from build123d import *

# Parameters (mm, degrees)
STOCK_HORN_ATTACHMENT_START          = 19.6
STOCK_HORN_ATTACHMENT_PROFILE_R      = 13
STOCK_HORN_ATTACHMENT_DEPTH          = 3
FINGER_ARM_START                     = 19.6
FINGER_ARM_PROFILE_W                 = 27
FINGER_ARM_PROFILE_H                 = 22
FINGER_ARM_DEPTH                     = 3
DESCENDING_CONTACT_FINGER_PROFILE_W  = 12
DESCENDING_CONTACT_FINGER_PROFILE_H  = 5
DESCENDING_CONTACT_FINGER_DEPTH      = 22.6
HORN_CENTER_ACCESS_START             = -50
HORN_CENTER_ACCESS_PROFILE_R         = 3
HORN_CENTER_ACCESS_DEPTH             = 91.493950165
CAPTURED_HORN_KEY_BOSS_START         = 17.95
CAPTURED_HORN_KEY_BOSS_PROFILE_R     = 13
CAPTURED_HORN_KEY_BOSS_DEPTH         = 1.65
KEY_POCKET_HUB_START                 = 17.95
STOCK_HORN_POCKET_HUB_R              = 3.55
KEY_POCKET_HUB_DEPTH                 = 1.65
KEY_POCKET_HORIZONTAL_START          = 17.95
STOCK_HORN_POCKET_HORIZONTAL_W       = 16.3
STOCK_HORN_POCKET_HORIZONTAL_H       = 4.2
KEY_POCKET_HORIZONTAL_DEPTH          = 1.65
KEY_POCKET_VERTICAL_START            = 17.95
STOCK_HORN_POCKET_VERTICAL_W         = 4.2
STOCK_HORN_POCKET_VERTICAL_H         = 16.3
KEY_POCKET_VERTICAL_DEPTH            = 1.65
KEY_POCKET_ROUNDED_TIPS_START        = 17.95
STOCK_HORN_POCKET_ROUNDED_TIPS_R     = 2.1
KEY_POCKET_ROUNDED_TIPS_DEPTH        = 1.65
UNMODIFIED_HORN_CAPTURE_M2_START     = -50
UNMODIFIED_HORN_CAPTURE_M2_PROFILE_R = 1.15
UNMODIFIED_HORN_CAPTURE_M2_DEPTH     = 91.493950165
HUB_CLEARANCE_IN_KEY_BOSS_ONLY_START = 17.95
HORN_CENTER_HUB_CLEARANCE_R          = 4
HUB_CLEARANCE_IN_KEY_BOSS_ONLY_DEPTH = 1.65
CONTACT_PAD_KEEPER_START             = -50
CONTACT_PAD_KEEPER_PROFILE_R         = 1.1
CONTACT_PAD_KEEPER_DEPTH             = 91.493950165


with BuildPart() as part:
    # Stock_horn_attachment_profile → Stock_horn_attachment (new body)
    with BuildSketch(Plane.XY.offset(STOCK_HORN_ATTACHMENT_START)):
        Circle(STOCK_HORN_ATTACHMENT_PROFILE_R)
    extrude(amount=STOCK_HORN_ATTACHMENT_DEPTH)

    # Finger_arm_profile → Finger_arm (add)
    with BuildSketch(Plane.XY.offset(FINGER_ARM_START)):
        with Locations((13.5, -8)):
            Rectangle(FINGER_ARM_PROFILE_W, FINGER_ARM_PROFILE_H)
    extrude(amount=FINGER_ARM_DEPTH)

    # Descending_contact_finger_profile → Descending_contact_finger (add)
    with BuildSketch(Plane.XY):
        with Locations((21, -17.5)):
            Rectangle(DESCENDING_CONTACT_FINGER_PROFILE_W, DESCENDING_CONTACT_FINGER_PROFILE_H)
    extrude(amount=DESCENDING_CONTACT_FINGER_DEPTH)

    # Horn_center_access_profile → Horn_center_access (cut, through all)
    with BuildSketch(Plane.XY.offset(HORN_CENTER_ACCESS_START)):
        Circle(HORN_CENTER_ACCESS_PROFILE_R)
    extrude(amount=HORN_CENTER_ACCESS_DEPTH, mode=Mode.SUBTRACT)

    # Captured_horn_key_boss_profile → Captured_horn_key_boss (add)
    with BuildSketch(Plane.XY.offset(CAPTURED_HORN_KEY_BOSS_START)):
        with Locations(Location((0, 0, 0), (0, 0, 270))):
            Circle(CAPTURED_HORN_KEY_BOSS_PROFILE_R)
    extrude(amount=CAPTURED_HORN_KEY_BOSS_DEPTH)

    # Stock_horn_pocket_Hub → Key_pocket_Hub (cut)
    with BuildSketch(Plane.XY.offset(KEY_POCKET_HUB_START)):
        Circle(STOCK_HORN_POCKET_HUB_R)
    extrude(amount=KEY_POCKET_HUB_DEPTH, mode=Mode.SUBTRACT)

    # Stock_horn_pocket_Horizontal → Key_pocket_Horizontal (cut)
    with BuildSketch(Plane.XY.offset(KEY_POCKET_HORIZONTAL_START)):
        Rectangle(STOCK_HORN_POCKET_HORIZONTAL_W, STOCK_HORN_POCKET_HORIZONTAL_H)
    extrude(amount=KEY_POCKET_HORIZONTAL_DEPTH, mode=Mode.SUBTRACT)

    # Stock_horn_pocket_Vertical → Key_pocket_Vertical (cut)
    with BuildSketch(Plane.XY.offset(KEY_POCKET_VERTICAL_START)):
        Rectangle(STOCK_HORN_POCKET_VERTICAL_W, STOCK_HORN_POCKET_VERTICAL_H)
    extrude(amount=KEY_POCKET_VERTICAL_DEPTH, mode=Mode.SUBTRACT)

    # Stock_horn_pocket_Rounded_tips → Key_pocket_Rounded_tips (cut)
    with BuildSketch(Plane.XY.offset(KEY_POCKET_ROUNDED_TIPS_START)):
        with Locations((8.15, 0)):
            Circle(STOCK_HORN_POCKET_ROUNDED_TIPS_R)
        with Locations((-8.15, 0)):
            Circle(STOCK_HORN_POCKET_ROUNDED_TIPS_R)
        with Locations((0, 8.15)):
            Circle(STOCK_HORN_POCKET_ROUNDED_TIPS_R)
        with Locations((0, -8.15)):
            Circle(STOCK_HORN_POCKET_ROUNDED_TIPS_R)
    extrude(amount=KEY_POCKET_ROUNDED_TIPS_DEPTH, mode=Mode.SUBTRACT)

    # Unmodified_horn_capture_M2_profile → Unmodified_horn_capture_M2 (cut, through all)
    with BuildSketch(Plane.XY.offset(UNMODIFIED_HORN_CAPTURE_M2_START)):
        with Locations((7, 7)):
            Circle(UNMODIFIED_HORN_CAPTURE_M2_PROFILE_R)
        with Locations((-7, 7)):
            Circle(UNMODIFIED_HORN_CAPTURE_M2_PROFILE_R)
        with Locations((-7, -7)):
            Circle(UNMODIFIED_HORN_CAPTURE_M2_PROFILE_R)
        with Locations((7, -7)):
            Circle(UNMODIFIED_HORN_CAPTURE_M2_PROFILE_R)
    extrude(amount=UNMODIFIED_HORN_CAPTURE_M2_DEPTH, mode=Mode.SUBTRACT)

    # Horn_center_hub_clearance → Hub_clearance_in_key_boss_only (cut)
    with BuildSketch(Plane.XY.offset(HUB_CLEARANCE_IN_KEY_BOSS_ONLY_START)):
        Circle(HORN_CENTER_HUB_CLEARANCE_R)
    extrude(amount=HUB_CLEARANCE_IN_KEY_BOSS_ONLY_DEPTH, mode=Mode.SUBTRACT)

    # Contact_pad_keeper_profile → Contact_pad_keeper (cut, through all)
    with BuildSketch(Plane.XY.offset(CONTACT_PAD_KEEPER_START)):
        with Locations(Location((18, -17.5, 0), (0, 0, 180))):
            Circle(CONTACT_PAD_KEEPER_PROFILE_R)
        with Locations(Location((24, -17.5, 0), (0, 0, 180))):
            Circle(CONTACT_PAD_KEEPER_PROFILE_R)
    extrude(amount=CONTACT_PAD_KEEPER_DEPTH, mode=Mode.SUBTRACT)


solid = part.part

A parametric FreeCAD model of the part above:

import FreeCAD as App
import Part
import Sketcher

V = App.Vector
Q = App.Units.Quantity

doc = App.newDocument("Part")
body = doc.addObject("PartDesign::Body", "Body")

sketch1 = doc.addObject("Sketcher::SketchObject", "Sketch")
body.addObject(sketch1)
sketch1.AttachmentSupport = (doc.XY_Plane, [""])
sketch1.MapMode = "FlatFace"
sketch1.AttachmentOffset = App.Placement(V(0, 0, 19.6), App.Rotation())
sketch1.addGeometry(Part.Circle(V(0, 0, 0), V(0, 0, 1), 13), False)
sketch1.addConstraint(Sketcher.Constraint("Coincident", 0, 3, -1, 1))
sketch1.addConstraint(Sketcher.Constraint("Diameter", 0, Q("26 mm")))
pad1 = doc.addObject("PartDesign::Pad", "Pad")
body.addObject(pad1)
pad1.Profile = sketch1
pad1.Length = 3

sketch2 = doc.addObject("Sketcher::SketchObject", "Sketch001")
body.addObject(sketch2)
sketch2.AttachmentSupport = (doc.XY_Plane, [""])
sketch2.MapMode = "FlatFace"
sketch2.AttachmentOffset = App.Placement(V(0, 0, 19.6), App.Rotation())
sketch2.addGeometry(Part.LineSegment(V(0, 3, 0), V(0, -19, 0)), False)
sketch2.addGeometry(Part.LineSegment(V(0, -19, 0), V(27, -19, 0)), False)
sketch2.addGeometry(Part.LineSegment(V(27, -19, 0), V(27, 3, 0)), False)
sketch2.addGeometry(Part.LineSegment(V(27, 3, 0), V(0, 3, 0)), False)
sketch2.addConstraint(Sketcher.Constraint("Coincident", 0, 2, 1, 1))
sketch2.addConstraint(Sketcher.Constraint("Coincident", 1, 2, 2, 1))
sketch2.addConstraint(Sketcher.Constraint("Coincident", 2, 2, 3, 1))
sketch2.addConstraint(Sketcher.Constraint("Coincident", 3, 2, 0, 1))
sketch2.addConstraint(Sketcher.Constraint("Vertical", 0))
sketch2.addConstraint(Sketcher.Constraint("Horizontal", 1))
sketch2.addConstraint(Sketcher.Constraint("Vertical", 2))
sketch2.addConstraint(Sketcher.Constraint("Horizontal", 3))
sketch2.addConstraint(Sketcher.Constraint("PointOnObject", 0, 2, -2))
sketch2.addConstraint(Sketcher.Constraint("DistanceX", 1, 1, 1, 2, Q("27 mm")))
sketch2.addConstraint(Sketcher.Constraint("DistanceY", 0, 2, 0, 1, Q("22 mm")))
sketch2.addConstraint(Sketcher.Constraint("DistanceY", 0, 2, -1, 1, Q("19 mm")))
pad2 = doc.addObject("PartDesign::Pad", "Pad001")
body.addObject(pad2)
pad2.Profile = sketch2
pad2.Length = 3

sketch3 = doc.addObject("Sketcher::SketchObject", "Sketch002")
body.addObject(sketch3)
sketch3.AttachmentSupport = (doc.XY_Plane, [""])
sketch3.MapMode = "FlatFace"
sketch3.addGeometry(Part.LineSegment(V(15, -15, 0), V(15, -20, 0)), False)
sketch3.addGeometry(Part.LineSegment(V(15, -20, 0), V(27, -20, 0)), False)
sketch3.addGeometry(Part.LineSegment(V(27, -20, 0), V(27, -15, 0)), False)
sketch3.addGeometry(Part.LineSegment(V(27, -15, 0), V(15, -15, 0)), False)
sketch3.addConstraint(Sketcher.Constraint("Coincident", 0, 2, 1, 1))
sketch3.addConstraint(Sketcher.Constraint("Coincident", 1, 2, 2, 1))
sketch3.addConstraint(Sketcher.Constraint("Coincident", 2, 2, 3, 1))
sketch3.addConstraint(Sketcher.Constraint("Coincident", 3, 2, 0, 1))
sketch3.addConstraint(Sketcher.Constraint("Vertical", 0))
sketch3.addConstraint(Sketcher.Constraint("Horizontal", 1))
sketch3.addConstraint(Sketcher.Constraint("Vertical", 2))
sketch3.addConstraint(Sketcher.Constraint("Horizontal", 3))
sketch3.addConstraint(Sketcher.Constraint("DistanceX", 1, 1, 1, 2, Q("12 mm")))
sketch3.addConstraint(Sketcher.Constraint("DistanceY", 0, 2, 0, 1, Q("5 mm")))
sketch3.addConstraint(Sketcher.Constraint("DistanceX", -1, 1, 0, 2, Q("15 mm")))
sketch3.addConstraint(Sketcher.Constraint("DistanceY", 0, 2, -1, 1, Q("20 mm")))
pad3 = doc.addObject("PartDesign::Pad", "Pad002")
body.addObject(pad3)
pad3.Profile = sketch3
pad3.Length = 22.6

sketch4 = doc.addObject("Sketcher::SketchObject", "Sketch003")
body.addObject(sketch4)
sketch4.AttachmentSupport = (doc.XY_Plane, [""])
sketch4.MapMode = "FlatFace"
sketch4.AttachmentOffset = App.Placement(V(0, 0, -50), App.Rotation())
sketch4.addGeometry(Part.Circle(V(0, 0, 0), V(0, 0, 1), 3), False)
sketch4.addConstraint(Sketcher.Constraint("Coincident", 0, 3, -1, 1))
sketch4.addConstraint(Sketcher.Constraint("Diameter", 0, Q("6 mm")))
pocket1 = doc.addObject("PartDesign::Pocket", "Pocket")
body.addObject(pocket1)
pocket1.Profile = sketch4
pocket1.Type = "ThroughAll"
pocket1.Reversed = True

sketch5 = doc.addObject("Sketcher::SketchObject", "Sketch004")
body.addObject(sketch5)
sketch5.AttachmentSupport = (doc.XY_Plane, [""])
sketch5.MapMode = "FlatFace"
sketch5.AttachmentOffset = App.Placement(V(0, 0, 17.95), App.Rotation())
sketch5.addGeometry(Part.Circle(V(0, 0, 0), V(0, 0, 1), 13), False)
sketch5.addConstraint(Sketcher.Constraint("Coincident", 0, 3, -1, 1))
sketch5.addConstraint(Sketcher.Constraint("Diameter", 0, Q("26 mm")))
pad4 = doc.addObject("PartDesign::Pad", "Pad003")
body.addObject(pad4)
pad4.Profile = sketch5
pad4.Length = 1.65

sketch6 = doc.addObject("Sketcher::SketchObject", "Sketch005")
body.addObject(sketch6)
sketch6.AttachmentSupport = (doc.XY_Plane, [""])
sketch6.MapMode = "FlatFace"
sketch6.AttachmentOffset = App.Placement(V(0, 0, 17.95), App.Rotation())
sketch6.addGeometry(Part.Circle(V(0, 0, 0), V(0, 0, 1), 3.5), False)
sketch6.addConstraint(Sketcher.Constraint("Coincident", 0, 3, -1, 1))
sketch6.addConstraint(Sketcher.Constraint("Diameter", 0, Q("7.1 mm")))
pocket2 = doc.addObject("PartDesign::Pocket", "Pocket001")
body.addObject(pocket2)
pocket2.Profile = sketch6
pocket2.Length = 1.65
pocket2.Reversed = True

sketch7 = doc.addObject("Sketcher::SketchObject", "Sketch006")
body.addObject(sketch7)
sketch7.AttachmentSupport = (doc.XY_Plane, [""])
sketch7.MapMode = "FlatFace"
sketch7.AttachmentOffset = App.Placement(V(0, 0, 17.95), App.Rotation())
sketch7.addGeometry(Part.LineSegment(V(-8.2, 2.1, 0), V(-8.2, -2.1, 0)), False)
sketch7.addGeometry(Part.LineSegment(V(-8.2, -2.1, 0), V(8.2, -2.1, 0)), False)
sketch7.addGeometry(Part.LineSegment(V(8.2, -2.1, 0), V(8.2, 2.1, 0)), False)
sketch7.addGeometry(Part.LineSegment(V(8.2, 2.1, 0), V(-8.2, 2.1, 0)), False)
sketch7.addConstraint(Sketcher.Constraint("Coincident", 0, 2, 1, 1))
sketch7.addConstraint(Sketcher.Constraint("Coincident", 1, 2, 2, 1))
sketch7.addConstraint(Sketcher.Constraint("Coincident", 2, 2, 3, 1))
sketch7.addConstraint(Sketcher.Constraint("Coincident", 3, 2, 0, 1))
sketch7.addConstraint(Sketcher.Constraint("Vertical", 0))
sketch7.addConstraint(Sketcher.Constraint("Horizontal", 1))
sketch7.addConstraint(Sketcher.Constraint("Vertical", 2))
sketch7.addConstraint(Sketcher.Constraint("Horizontal", 3))
sketch7.addConstraint(Sketcher.Constraint("Symmetric", 0, 2, 2, 2, -1, 1))
sketch7.addConstraint(Sketcher.Constraint("DistanceX", 1, 1, 1, 2, Q("16.3 mm")))
sketch7.addConstraint(Sketcher.Constraint("DistanceY", 0, 2, 0, 1, Q("4.2 mm")))
pocket3 = doc.addObject("PartDesign::Pocket", "Pocket002")
body.addObject(pocket3)
pocket3.Profile = sketch7
pocket3.Length = 1.65
pocket3.Reversed = True

sketch8 = doc.addObject("Sketcher::SketchObject", "Sketch007")
body.addObject(sketch8)
sketch8.AttachmentSupport = (doc.XY_Plane, [""])
sketch8.MapMode = "FlatFace"
sketch8.AttachmentOffset = App.Placement(V(0, 0, 17.95), App.Rotation())
sketch8.addGeometry(Part.LineSegment(V(-2.1, 8.2, 0), V(-2.1, -8.2, 0)), False)
sketch8.addGeometry(Part.LineSegment(V(-2.1, -8.2, 0), V(2.1, -8.2, 0)), False)
sketch8.addGeometry(Part.LineSegment(V(2.1, -8.2, 0), V(2.1, 8.2, 0)), False)
sketch8.addGeometry(Part.LineSegment(V(2.1, 8.2, 0), V(-2.1, 8.2, 0)), False)
sketch8.addConstraint(Sketcher.Constraint("Coincident", 0, 2, 1, 1))
sketch8.addConstraint(Sketcher.Constraint("Coincident", 1, 2, 2, 1))
sketch8.addConstraint(Sketcher.Constraint("Coincident", 2, 2, 3, 1))
sketch8.addConstraint(Sketcher.Constraint("Coincident", 3, 2, 0, 1))
sketch8.addConstraint(Sketcher.Constraint("Vertical", 0))
sketch8.addConstraint(Sketcher.Constraint("Horizontal", 1))
sketch8.addConstraint(Sketcher.Constraint("Vertical", 2))
sketch8.addConstraint(Sketcher.Constraint("Horizontal", 3))
sketch8.addConstraint(Sketcher.Constraint("Symmetric", 0, 2, 2, 2, -1, 1))
sketch8.addConstraint(Sketcher.Constraint("DistanceX", 1, 1, 1, 2, Q("4.2 mm")))
sketch8.addConstraint(Sketcher.Constraint("DistanceY", 0, 2, 0, 1, Q("16.3 mm")))
pocket4 = doc.addObject("PartDesign::Pocket", "Pocket003")
body.addObject(pocket4)
pocket4.Profile = sketch8
pocket4.Length = 1.65
pocket4.Reversed = True

sketch9 = doc.addObject("Sketcher::SketchObject", "Sketch008")
body.addObject(sketch9)
sketch9.AttachmentSupport = (doc.XY_Plane, [""])
sketch9.MapMode = "FlatFace"
sketch9.AttachmentOffset = App.Placement(V(0, 0, 17.95), App.Rotation())
sketch9.addGeometry(Part.Circle(V(8.2, 0, 0), V(0, 0, 1), 2.1), False)
sketch9.addGeometry(Part.Circle(V(-8.2, 0, 0), V(0, 0, 1), 2.1), False)
sketch9.addGeometry(Part.Circle(V(0, 8.2, 0), V(0, 0, 1), 2.1), False)
sketch9.addGeometry(Part.Circle(V(0, -8.2, 0), V(0, 0, 1), 2.1), False)
sketch9.addConstraint(Sketcher.Constraint("Equal", 0, 1))
sketch9.addConstraint(Sketcher.Constraint("Equal", 1, 2))
sketch9.addConstraint(Sketcher.Constraint("Equal", 2, 3))
sketch9.addConstraint(Sketcher.Constraint("Symmetric", 0, 3, 1, 3, -1, 1))
sketch9.addConstraint(Sketcher.Constraint("Symmetric", 2, 3, 3, 3, -1, 1))
sketch9.addConstraint(Sketcher.Constraint("PointOnObject", 0, 3, -1))
sketch9.addConstraint(Sketcher.Constraint("PointOnObject", 2, 3, -2))
sketch9.addConstraint(Sketcher.Constraint("Diameter", 0, Q("4.2 mm")))
sketch9.addConstraint(Sketcher.Constraint("DistanceX", 1, 3, 0, 3, Q("16.3 mm")))
sketch9.addConstraint(Sketcher.Constraint("DistanceY", 3, 3, 2, 3, Q("16.3 mm")))
pocket5 = doc.addObject("PartDesign::Pocket", "Pocket004")
body.addObject(pocket5)
pocket5.Profile = sketch9
pocket5.Length = 1.65
pocket5.Reversed = True

sketch10 = doc.addObject("Sketcher::SketchObject", "Sketch009")
body.addObject(sketch10)
sketch10.AttachmentSupport = (doc.XY_Plane, [""])
sketch10.MapMode = "FlatFace"
sketch10.AttachmentOffset = App.Placement(V(0, 0, -50), App.Rotation())
sketch10.addGeometry(Part.Circle(V(7, 7, 0), V(0, 0, 1), 1.1), False)
sketch10.addGeometry(Part.Circle(V(-7, 7, 0), V(0, 0, 1), 1.1), False)
sketch10.addGeometry(Part.Circle(V(-7, -7, 0), V(0, 0, 1), 1.1), False)
sketch10.addGeometry(Part.Circle(V(7, -7, 0), V(0, 0, 1), 1.1), False)
sketch10.addConstraint(Sketcher.Constraint("Equal", 0, 1))
sketch10.addConstraint(Sketcher.Constraint("Equal", 1, 2))
sketch10.addConstraint(Sketcher.Constraint("Equal", 2, 3))
sketch10.addConstraint(Sketcher.Constraint("Symmetric", 0, 3, 2, 3, -1, 1))
sketch10.addConstraint(Sketcher.Constraint("Symmetric", 1, 3, 3, 3, -1, 1))
sketch10.addConstraint(Sketcher.Constraint("Symmetric", 0, 3, 1, 3, -2))
sketch10.addConstraint(Sketcher.Constraint("Diameter", 0, Q("2.3 mm")))
sketch10.addConstraint(Sketcher.Constraint("DistanceX", -1, 1, 0, 3, Q("7 mm")))
sketch10.addConstraint(Sketcher.Constraint("DistanceY", -1, 1, 0, 3, Q("7 mm")))
pocket6 = doc.addObject("PartDesign::Pocket", "Pocket005")
body.addObject(pocket6)
pocket6.Profile = sketch10
pocket6.Type = "ThroughAll"
pocket6.Reversed = True

sketch11 = doc.addObject("Sketcher::SketchObject", "Sketch010")
body.addObject(sketch11)
sketch11.AttachmentSupport = (doc.XY_Plane, [""])
sketch11.MapMode = "FlatFace"
sketch11.AttachmentOffset = App.Placement(V(0, 0, 17.95), App.Rotation())
sketch11.addGeometry(Part.Circle(V(0, 0, 0), V(0, 0, 1), 4), False)
sketch11.addConstraint(Sketcher.Constraint("Coincident", 0, 3, -1, 1))
sketch11.addConstraint(Sketcher.Constraint("Diameter", 0, Q("8 mm")))
pocket7 = doc.addObject("PartDesign::Pocket", "Pocket006")
body.addObject(pocket7)
pocket7.Profile = sketch11
pocket7.Length = 1.65
pocket7.Reversed = True

sketch12 = doc.addObject("Sketcher::SketchObject", "Sketch011")
body.addObject(sketch12)
sketch12.AttachmentSupport = (doc.XY_Plane, [""])
sketch12.MapMode = "FlatFace"
sketch12.AttachmentOffset = App.Placement(V(0, 0, -50), App.Rotation())
sketch12.addGeometry(Part.Circle(V(18, -17.5, 0), V(0, 0, 1), 1.1), False)
sketch12.addGeometry(Part.Circle(V(24, -17.5, 0), V(0, 0, 1), 1.1), False)
sketch12.addConstraint(Sketcher.Constraint("Equal", 0, 1))
sketch12.addConstraint(Sketcher.Constraint("Horizontal", 0, 3, 1, 3))
sketch12.addConstraint(Sketcher.Constraint("Diameter", 0, Q("2.2 mm")))
sketch12.addConstraint(Sketcher.Constraint("DistanceX", -1, 1, 0, 3, Q("18 mm")))
sketch12.addConstraint(Sketcher.Constraint("DistanceX", -1, 1, 1, 3, Q("24 mm")))
sketch12.addConstraint(Sketcher.Constraint("DistanceY", 0, 3, -1, 1, Q("17.5 mm")))
pocket8 = doc.addObject("PartDesign::Pocket", "Pocket007")
body.addObject(pocket8)
pocket8.Profile = sketch12
pocket8.Type = "ThroughAll"
pocket8.Reversed = True

doc.recompute()
